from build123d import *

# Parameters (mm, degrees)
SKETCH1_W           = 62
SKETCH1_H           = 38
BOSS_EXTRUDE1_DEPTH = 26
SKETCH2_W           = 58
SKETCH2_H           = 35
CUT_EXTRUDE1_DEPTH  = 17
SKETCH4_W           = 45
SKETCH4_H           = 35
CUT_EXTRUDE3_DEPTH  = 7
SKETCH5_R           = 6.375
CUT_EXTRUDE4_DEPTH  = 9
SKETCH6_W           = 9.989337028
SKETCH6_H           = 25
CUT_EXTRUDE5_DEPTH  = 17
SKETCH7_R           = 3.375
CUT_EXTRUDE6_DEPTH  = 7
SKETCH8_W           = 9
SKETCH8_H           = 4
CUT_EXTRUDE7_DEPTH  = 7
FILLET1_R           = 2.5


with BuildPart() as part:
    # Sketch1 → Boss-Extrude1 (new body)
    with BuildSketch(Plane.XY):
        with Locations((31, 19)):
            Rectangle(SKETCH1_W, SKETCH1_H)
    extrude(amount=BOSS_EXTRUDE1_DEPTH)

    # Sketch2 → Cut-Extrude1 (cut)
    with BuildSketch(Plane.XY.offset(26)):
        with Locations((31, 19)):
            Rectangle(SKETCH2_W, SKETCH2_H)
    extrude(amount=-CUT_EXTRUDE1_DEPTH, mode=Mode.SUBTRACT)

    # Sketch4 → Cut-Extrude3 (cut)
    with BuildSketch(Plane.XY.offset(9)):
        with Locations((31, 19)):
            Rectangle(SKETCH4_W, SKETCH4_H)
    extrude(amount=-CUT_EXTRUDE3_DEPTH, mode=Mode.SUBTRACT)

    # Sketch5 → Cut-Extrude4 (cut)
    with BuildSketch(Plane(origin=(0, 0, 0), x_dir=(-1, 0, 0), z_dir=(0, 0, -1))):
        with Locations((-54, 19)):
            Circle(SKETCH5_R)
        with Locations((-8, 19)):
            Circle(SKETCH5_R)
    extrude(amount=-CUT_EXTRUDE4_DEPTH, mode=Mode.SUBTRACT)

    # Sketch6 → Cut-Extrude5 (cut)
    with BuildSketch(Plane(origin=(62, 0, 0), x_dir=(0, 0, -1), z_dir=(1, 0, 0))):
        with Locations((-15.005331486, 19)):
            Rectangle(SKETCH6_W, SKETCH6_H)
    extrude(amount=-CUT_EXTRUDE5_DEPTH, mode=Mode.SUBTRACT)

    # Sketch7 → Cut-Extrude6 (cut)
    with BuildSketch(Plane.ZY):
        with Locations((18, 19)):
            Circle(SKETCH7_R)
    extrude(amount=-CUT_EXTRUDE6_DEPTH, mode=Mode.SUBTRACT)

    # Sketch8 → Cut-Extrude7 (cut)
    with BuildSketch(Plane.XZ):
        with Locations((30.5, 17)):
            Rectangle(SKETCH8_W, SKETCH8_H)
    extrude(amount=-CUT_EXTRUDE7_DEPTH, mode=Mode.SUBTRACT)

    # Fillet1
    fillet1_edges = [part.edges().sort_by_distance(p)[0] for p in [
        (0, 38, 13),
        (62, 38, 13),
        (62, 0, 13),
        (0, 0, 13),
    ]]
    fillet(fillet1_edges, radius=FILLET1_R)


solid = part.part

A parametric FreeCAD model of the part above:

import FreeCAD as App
import Part
import Sketcher
Q = App.Units.Quantity


def edges_at(feature, points):
    """Names of the edges that pass closest to the given points."""
    edges = feature.Shape.Edges
    near = lambda p: min(range(len(edges)), key=lambda i: edges[i].distToShape(Part.Vertex(*p))[0])
    return sorted({f"Edge{near(p) + 1}" for p in points})

doc = App.newDocument("Part")
body = doc.addObject("PartDesign::Body", "Body")

sketch1 = body.newObject("Sketcher::SketchObject", "Sketch")
sketch1.AttachmentSupport = (doc.getObject("XY_Plane"), [""])
sketch1.MapMode = "FlatFace"
sketch1.addGeometry([
    Part.LineSegment(App.Vector(0, 38, 0), App.Vector(0, 0, 0)),
    Part.LineSegment(App.Vector(0, 0, 0), App.Vector(62, 0, 0)),
    Part.LineSegment(App.Vector(62, 0, 0), App.Vector(62, 38, 0)),
    Part.LineSegment(App.Vector(62, 38, 0), App.Vector(0, 38, 0)),
], False)
sketch1.addConstraint([
    Sketcher.Constraint("Coincident", 0, 2, 1, 1),
    Sketcher.Constraint("Coincident", 1, 2, 2, 1),
    Sketcher.Constraint("Coincident", 2, 2, 3, 1),
    Sketcher.Constraint("Coincident", 3, 2, 0, 1),
    Sketcher.Constraint("Vertical", 0),
    Sketcher.Constraint("Horizontal", 1),
    Sketcher.Constraint("Vertical", 2),
    Sketcher.Constraint("Horizontal", 3),
    Sketcher.Constraint("Coincident", 0, 2, -1, 1),
    Sketcher.Constraint("DistanceX", 1, 1, 1, 2, Q("62 mm")),
    Sketcher.Constraint("DistanceY", 0, 2, 0, 1, Q("38 mm")),
])
pad1 = body.newObject("PartDesign::Pad", "Pad")
pad1.Profile = sketch1
pad1.Length = 26

sketch2 = body.newObject("Sketcher::SketchObject", "Sketch001")
sketch2.AttachmentSupport = (doc.getObject("XY_Plane"), [""])
sketch2.MapMode = "FlatFace"
sketch2.AttachmentOffset = App.Placement(App.Vector(0, 0, 26), App.Rotation())
sketch2.addGeometry([
    Part.LineSegment(App.Vector(2, 36.5, 0), App.Vector(2, 1.5, 0)),
    Part.LineSegment(App.Vector(2, 1.5, 0), App.Vector(60, 1.5, 0)),
    Part.LineSegment(App.Vector(60, 1.5, 0), App.Vector(60, 36.5, 0)),
    Part.LineSegment(App.Vector(60, 36.5, 0), App.Vector(2, 36.5, 0)),
], False)
sketch2.addConstraint([
    Sketcher.Constraint("Coincident", 0, 2, 1, 1),
    Sketcher.Constraint("Coincident", 1, 2, 2, 1),
    Sketcher.Constraint("Coincident", 2, 2, 3, 1),
    Sketcher.Constraint("Coincident", 3, 2, 0, 1),
    Sketcher.Constraint("Vertical", 0),
    Sketcher.Constraint("Horizontal", 1),
    Sketcher.Constraint("Vertical", 2),
    Sketcher.Constraint("Horizontal", 3),
    Sketcher.Constraint("DistanceX", 1, 1, 1, 2, Q("58 mm")),
    Sketcher.Constraint("DistanceY", 0, 2, 0, 1, Q("35 mm")),
    Sketcher.Constraint("DistanceX", -1, 1, 0, 2, Q("2 mm")),
    Sketcher.Constraint("DistanceY", -1, 1, 0, 2, Q("1.5 mm")),
])
pocket1 = body.newObject("PartDesign::Pocket", "Pocket")
pocket1.Profile = sketch2
pocket1.Length = 17

sketch3 = body.newObject("Sketcher::SketchObject", "Sketch002")
sketch3.AttachmentSupport = (doc.getObject("XY_Plane"), [""])
sketch3.MapMode = "FlatFace"
sketch3.AttachmentOffset = App.Placement(App.Vector(0, 0, 9), App.Rotation())
sketch3.addGeometry([
    Part.LineSegment(App.Vector(8.5, 36.5, 0), App.Vector(8.5, 1.5, 0)),
    Part.LineSegment(App.Vector(8.5, 1.5, 0), App.Vector(53.5, 1.5, 0)),
    Part.LineSegment(App.Vector(53.5, 1.5, 0), App.Vector(53.5, 36.5, 0)),
    Part.LineSegment(App.Vector(53.5, 36.5, 0), App.Vector(8.5, 36.5, 0)),
], False)
sketch3.addConstraint([
    Sketcher.Constraint("Coincident", 0, 2, 1, 1),
    Sketcher.Constraint("Coincident", 1, 2, 2, 1),
    Sketcher.Constraint("Coincident", 2, 2, 3, 1),
    Sketcher.Constraint("Coincident", 3, 2, 0, 1),
    Sketcher.Constraint("Vertical", 0),
    Sketcher.Constraint("Horizontal", 1),
    Sketcher.Constraint("Vertical", 2),
    Sketcher.Constraint("Horizontal", 3),
    Sketcher.Constraint("DistanceX", 1, 1, 1, 2, Q("45 mm")),
    Sketcher.Constraint("DistanceY", 0, 2, 0, 1, Q("35 mm")),
    Sketcher.Constraint("DistanceX", -1, 1, 0, 2, Q("8.5 mm")),
    Sketcher.Constraint("DistanceY", -1, 1, 0, 2, Q("1.5 mm")),
])
pocket2 = body.newObject("PartDesign::Pocket", "Pocket001")
pocket2.Profile = sketch3
pocket2.Length = 7

sketch4 = body.newObject("Sketcher::SketchObject", "Sketch003")
sketch4.AttachmentSupport = (doc.getObject("XY_Plane"), [""])
sketch4.MapMode = "FlatFace"
sketch4.addGeometry([
    Part.Circle(App.Vector(54, 19, 0), App.Vector(0, 0, 1), 6.375),
    Part.Circle(App.Vector(8, 19, 0), App.Vector(0, 0, 1), 6.375),
], False)
sketch4.addConstraint([
    Sketcher.Constraint("Equal", 0, 1),
    Sketcher.Constraint("Horizontal", 0, 3, 1, 3),
    Sketcher.Constraint("Diameter", 0, Q("12.75 mm")),
    Sketcher.Constraint("DistanceX", -1, 1, 0, 3, Q("54 mm")),
    Sketcher.Constraint("DistanceY", -1, 1, 0, 3, Q("19 mm")),
    Sketcher.Constraint("DistanceX", -1, 1, 1, 3, Q("8 mm")),
])
pocket3 = body.newObject("PartDesign::Pocket", "Pocket002")
pocket3.Profile = sketch4
pocket3.Length = 9
pocket3.Reversed = True

sketch5 = body.newObject("Sketcher::SketchObject", "Sketch004")
sketch5.AttachmentSupport = (doc.getObject("YZ_Plane"), [""])
sketch5.MapMode = "FlatFace"
sketch5.AttachmentOffset = App.Placement(App.Vector(0, 0, 62), App.Rotation())
sketch5.addGeometry([
    Part.LineSegment(App.Vector(31.5, 20, 0), App.Vector(6.5, 20, 0)),
    Part.LineSegment(App.Vector(6.5, 20, 0), App.Vector(6.5, 10.010663, 0)),
    Part.LineSegment(App.Vector(6.5, 10.010663, 0), App.Vector(31.5, 10.010663, 0)),
    Part.LineSegment(App.Vector(31.5, 10.010663, 0), App.Vector(31.5, 20, 0)),
], False)
sketch5.addConstraint([
    Sketcher.Constraint("Coincident", 0, 2, 1, 1),
    Sketcher.Constraint("Coincident", 1, 2, 2, 1),
    Sketcher.Constraint("Coincident", 2, 2, 3, 1),
    Sketcher.Constraint("Coincident", 3, 2, 0, 1),
    Sketcher.Constraint("Horizontal", 0),
    Sketcher.Constraint("Vertical", 1),
    Sketcher.Constraint("Horizontal", 2),
    Sketcher.Constraint("Vertical", 3),
    Sketcher.Constraint("DistanceX", 0, 2, 0, 1, Q("25 mm")),
    Sketcher.Constraint("DistanceY", -1, 1, 0, 2, Q("20 mm")),
    Sketcher.Constraint("DistanceX", -1, 1, 0, 2, Q("6.5 mm")),
    Sketcher.Constraint("DistanceY", 1, 2, 1, 1, Q("9.989337 mm")),
])
pocket4 = body.newObject("PartDesign::Pocket", "Pocket003")
pocket4.Profile = sketch5
pocket4.Length = 17

sketch6 = body.newObject("Sketcher::SketchObject", "Sketch005")
sketch6.AttachmentSupport = (doc.getObject("YZ_Plane"), [""])
sketch6.MapMode = "FlatFace"
sketch6.addGeometry(Part.Circle(App.Vector(19, 18, 0), App.Vector(0, 0, 1), 3.375), False)
sketch6.addConstraint([
    Sketcher.Constraint("Diameter", 0, Q("6.75 mm")),
    Sketcher.Constraint("DistanceX", -1, 1, 0, 3, Q("19 mm")),
    Sketcher.Constraint("DistanceY", -1, 1, 0, 3, Q("18 mm")),
])
pocket5 = body.newObject("PartDesign::Pocket", "Pocket004")
pocket5.Profile = sketch6
pocket5.Length = 7
pocket5.Reversed = True

sketch7 = body.newObject("Sketcher::SketchObject", "Sketch006")
sketch7.AttachmentSupport = (doc.getObject("XZ_Plane"), [""])
sketch7.MapMode = "FlatFace"
sketch7.addGeometry([
    Part.LineSegment(App.Vector(26, 19, 0), App.Vector(26, 15, 0)),
    Part.LineSegment(App.Vector(26, 15, 0), App.Vector(35, 15, 0)),
    Part.LineSegment(App.Vector(35, 15, 0), App.Vector(35, 19, 0)),
    Part.LineSegment(App.Vector(35, 19, 0), App.Vector(26, 19, 0)),
], False)
sketch7.addConstraint([
    Sketcher.Constraint("Coincident", 0, 2, 1, 1),
    Sketcher.Constraint("Coincident", 1, 2, 2, 1),
    Sketcher.Constraint("Coincident", 2, 2, 3, 1),
    Sketcher.Constraint("Coincident", 3, 2, 0, 1),
    Sketcher.Constraint("Vertical", 0),
    Sketcher.Constraint("Horizontal", 1),
    Sketcher.Constraint("Vertical", 2),
    Sketcher.Constraint("Horizontal", 3),
    Sketcher.Constraint("DistanceX", 1, 1, 1, 2, Q("9 mm")),
    Sketcher.Constraint("DistanceY", 0, 2, 0, 1, Q("4 mm")),
    Sketcher.Constraint("DistanceX", -1, 1, 0, 2, Q("26 mm")),
    Sketcher.Constraint("DistanceY", -1, 1, 0, 2, Q("15 mm")),
])
pocket6 = body.newObject("PartDesign::Pocket", "Pocket005")
pocket6.Profile = sketch7
pocket6.Length = 7
doc.recompute()

fillet = body.newObject("PartDesign::Fillet", "Fillet")
fillet.Base = (pocket6, edges_at(pocket6, [
    (0, 38, 13),
    (62, 38, 13),
    (62, 0, 13),
    (0, 0, 13),
]))
fillet.Radius = 2.5

doc.recompute()
